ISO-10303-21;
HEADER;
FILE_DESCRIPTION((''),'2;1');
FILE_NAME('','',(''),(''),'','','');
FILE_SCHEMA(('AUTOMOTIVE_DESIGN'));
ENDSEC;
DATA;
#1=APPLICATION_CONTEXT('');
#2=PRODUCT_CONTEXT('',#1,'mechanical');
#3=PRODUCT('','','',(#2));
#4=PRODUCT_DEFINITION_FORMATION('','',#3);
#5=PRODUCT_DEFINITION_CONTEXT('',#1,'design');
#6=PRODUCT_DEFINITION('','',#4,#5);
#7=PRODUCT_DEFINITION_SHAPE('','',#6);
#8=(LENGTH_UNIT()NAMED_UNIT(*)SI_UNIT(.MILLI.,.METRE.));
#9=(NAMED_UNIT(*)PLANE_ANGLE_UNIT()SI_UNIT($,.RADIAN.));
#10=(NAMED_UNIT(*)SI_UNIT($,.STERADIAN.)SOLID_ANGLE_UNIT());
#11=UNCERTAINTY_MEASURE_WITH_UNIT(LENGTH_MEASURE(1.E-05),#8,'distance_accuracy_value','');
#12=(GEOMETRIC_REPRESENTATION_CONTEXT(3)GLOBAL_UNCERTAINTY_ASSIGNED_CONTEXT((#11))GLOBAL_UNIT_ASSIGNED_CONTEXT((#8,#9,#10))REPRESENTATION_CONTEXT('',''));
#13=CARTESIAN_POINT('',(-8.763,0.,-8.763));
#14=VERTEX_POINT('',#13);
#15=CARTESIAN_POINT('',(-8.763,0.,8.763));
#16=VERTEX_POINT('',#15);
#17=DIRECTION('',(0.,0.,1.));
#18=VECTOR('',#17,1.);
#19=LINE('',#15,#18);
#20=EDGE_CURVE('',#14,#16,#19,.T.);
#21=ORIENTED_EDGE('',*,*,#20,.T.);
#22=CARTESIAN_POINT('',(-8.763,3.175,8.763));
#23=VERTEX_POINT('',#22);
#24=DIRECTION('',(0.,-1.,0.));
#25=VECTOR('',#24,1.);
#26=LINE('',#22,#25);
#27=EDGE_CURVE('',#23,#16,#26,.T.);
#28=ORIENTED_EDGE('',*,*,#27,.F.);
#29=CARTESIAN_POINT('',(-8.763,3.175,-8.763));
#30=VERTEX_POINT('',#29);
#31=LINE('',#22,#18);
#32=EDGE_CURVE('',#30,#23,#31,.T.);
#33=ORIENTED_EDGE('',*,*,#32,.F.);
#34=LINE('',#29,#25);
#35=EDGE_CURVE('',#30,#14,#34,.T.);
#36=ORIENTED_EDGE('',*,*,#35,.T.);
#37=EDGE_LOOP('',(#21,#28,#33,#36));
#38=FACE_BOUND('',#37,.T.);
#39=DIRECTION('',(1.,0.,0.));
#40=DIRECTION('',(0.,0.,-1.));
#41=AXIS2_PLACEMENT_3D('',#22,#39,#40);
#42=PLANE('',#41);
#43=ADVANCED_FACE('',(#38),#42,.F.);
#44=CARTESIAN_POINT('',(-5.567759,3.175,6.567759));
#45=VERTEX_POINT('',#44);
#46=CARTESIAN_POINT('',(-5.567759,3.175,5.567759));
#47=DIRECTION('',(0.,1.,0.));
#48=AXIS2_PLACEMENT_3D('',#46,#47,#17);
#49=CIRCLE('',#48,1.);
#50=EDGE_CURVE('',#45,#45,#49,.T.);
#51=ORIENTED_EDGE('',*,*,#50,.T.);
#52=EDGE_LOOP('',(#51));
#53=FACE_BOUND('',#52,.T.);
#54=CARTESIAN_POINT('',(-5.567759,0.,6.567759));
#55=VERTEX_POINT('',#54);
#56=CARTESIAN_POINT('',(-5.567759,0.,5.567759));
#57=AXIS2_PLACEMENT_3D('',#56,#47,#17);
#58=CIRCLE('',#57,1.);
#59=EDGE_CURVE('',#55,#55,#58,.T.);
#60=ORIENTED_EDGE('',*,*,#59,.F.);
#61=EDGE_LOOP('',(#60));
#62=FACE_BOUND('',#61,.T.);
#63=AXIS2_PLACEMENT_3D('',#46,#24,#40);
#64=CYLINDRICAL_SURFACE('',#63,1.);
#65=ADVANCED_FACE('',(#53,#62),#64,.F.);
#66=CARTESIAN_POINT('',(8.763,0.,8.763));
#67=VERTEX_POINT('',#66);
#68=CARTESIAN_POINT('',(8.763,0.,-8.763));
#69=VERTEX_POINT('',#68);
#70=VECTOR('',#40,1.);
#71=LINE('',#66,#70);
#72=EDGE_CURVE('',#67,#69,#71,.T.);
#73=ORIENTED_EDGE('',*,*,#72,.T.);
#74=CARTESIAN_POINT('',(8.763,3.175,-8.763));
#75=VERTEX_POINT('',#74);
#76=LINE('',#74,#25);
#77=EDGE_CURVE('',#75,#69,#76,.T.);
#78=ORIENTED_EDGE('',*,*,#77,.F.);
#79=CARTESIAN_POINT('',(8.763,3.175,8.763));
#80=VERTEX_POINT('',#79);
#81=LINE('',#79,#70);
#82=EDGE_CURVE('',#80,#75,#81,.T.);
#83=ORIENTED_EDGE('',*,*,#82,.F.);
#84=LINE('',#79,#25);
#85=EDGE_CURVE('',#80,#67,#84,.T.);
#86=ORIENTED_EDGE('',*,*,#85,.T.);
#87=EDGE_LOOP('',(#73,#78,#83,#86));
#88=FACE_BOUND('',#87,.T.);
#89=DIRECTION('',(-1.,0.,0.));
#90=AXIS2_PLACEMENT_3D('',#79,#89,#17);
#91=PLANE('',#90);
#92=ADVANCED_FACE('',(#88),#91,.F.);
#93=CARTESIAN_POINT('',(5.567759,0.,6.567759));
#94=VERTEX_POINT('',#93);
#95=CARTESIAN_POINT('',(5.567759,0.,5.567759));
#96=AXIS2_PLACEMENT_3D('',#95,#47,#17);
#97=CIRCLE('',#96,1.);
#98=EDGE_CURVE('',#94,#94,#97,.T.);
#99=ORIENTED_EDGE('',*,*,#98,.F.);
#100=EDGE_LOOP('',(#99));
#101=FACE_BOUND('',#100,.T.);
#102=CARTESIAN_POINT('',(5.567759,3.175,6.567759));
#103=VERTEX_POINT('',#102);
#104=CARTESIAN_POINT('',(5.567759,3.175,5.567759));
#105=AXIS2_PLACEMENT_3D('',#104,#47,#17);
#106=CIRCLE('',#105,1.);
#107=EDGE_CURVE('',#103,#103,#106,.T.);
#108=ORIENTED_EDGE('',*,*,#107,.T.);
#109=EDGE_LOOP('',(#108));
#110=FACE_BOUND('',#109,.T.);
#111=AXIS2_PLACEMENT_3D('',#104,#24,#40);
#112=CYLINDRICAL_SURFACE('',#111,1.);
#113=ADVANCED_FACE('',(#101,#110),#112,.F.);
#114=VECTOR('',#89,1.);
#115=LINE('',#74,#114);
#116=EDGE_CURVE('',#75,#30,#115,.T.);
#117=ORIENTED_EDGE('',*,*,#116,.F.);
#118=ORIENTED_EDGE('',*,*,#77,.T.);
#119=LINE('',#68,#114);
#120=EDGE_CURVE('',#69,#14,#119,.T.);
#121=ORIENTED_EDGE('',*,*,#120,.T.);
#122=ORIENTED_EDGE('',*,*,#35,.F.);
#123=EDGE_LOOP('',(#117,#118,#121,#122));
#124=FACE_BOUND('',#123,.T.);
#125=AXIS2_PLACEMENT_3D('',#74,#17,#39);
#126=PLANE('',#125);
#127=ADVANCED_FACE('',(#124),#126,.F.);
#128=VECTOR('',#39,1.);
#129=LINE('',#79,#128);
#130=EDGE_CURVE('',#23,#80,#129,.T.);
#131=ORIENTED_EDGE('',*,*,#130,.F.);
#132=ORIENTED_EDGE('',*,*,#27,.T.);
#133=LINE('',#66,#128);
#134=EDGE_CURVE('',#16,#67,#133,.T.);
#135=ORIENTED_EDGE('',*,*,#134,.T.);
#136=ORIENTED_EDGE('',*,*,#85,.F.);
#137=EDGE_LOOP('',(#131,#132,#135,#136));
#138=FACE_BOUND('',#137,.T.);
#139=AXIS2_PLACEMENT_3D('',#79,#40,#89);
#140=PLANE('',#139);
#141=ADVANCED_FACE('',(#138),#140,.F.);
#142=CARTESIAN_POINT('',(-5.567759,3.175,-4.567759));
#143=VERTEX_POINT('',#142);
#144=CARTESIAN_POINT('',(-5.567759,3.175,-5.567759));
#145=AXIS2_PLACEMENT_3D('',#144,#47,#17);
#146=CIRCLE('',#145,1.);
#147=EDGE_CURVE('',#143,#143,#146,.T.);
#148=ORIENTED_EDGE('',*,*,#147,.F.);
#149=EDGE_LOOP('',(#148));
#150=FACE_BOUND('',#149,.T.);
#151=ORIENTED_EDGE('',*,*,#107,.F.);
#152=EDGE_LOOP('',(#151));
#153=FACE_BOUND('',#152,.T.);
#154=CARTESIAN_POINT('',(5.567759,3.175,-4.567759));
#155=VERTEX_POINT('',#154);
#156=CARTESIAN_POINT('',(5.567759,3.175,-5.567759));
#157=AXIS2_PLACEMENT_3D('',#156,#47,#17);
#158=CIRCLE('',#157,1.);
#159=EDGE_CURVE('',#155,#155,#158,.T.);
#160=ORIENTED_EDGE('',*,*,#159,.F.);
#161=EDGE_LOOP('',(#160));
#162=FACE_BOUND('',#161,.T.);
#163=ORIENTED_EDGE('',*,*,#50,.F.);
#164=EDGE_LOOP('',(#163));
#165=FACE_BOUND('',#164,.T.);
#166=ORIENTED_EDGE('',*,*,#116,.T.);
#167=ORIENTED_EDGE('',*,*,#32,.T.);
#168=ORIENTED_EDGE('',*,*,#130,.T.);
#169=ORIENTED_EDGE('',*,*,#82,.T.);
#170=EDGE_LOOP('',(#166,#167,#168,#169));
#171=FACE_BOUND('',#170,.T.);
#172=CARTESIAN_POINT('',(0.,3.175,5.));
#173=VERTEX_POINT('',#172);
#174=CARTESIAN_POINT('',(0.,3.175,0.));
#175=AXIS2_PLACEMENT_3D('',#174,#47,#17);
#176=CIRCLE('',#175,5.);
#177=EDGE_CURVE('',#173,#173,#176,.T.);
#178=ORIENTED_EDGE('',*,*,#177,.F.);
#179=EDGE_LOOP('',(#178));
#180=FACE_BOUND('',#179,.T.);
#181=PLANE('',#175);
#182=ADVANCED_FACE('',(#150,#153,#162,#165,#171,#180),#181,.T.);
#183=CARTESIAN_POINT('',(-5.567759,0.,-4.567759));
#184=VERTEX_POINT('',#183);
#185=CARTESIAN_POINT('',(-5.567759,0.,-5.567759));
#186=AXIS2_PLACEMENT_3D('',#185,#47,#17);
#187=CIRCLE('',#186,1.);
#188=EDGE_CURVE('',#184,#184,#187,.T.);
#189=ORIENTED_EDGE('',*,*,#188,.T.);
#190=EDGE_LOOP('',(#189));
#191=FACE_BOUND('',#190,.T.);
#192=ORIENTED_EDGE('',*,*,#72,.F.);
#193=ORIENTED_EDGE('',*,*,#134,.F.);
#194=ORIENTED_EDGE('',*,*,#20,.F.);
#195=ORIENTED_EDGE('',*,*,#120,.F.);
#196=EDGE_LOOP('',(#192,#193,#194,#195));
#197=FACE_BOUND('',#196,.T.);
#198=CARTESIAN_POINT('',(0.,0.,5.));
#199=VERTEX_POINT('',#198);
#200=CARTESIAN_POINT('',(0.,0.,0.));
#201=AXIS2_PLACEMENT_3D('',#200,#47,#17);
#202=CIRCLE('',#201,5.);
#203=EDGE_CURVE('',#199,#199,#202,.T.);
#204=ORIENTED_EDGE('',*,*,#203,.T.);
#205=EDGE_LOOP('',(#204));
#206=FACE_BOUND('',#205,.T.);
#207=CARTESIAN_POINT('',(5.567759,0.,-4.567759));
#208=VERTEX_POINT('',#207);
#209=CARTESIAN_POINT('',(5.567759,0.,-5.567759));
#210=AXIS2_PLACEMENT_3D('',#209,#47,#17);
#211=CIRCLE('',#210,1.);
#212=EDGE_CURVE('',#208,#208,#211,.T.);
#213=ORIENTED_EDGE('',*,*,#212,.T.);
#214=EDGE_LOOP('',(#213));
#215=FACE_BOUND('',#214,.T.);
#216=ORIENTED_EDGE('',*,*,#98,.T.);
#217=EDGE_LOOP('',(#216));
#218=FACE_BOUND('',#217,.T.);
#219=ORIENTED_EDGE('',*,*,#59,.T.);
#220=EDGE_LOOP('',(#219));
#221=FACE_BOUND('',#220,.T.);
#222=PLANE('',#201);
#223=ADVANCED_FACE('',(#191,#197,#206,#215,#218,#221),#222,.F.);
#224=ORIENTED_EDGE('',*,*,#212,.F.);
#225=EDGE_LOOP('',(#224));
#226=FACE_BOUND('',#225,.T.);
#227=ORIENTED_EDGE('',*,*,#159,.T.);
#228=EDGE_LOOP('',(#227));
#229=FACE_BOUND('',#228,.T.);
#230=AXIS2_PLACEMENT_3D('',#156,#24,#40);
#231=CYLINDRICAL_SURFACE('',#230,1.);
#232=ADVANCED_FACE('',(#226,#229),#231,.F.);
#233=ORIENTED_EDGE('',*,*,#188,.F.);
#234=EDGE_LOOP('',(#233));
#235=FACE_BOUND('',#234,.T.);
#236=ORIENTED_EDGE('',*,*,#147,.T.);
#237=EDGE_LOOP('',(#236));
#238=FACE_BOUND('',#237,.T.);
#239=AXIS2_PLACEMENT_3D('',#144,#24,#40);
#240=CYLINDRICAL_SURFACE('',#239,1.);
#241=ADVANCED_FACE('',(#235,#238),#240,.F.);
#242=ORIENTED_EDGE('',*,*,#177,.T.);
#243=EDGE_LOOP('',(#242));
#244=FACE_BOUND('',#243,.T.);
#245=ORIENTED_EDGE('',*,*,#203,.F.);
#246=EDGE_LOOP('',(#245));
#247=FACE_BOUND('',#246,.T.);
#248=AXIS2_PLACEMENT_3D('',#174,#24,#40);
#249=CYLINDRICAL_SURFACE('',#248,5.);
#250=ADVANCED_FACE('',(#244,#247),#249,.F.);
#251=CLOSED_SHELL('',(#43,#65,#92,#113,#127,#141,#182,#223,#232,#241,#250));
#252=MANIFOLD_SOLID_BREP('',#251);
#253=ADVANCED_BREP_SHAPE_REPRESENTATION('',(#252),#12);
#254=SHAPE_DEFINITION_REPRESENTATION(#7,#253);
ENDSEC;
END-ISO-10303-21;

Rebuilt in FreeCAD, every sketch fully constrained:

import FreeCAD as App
import Part
import Sketcher
from FreeCAD import Vector
Q = App.Units.Quantity

doc = App.newDocument("Part")
body = doc.addObject("PartDesign::Body", "Body")

# Sketch on XZ plane
sketch1 = doc.addObject("Sketcher::SketchObject", "Sketch")
body.addObject(sketch1)
sketch1.AttachmentSupport = (doc.XZ_Plane, [""])
sketch1.MapMode = "FlatFace"
sketch1.addGeometry(Part.LineSegment(Vector(-8.8, -8.8, 0), Vector(-8.8, 8.8, 0)), False)
sketch1.addGeometry(Part.LineSegment(Vector(-8.8, 8.8, 0), Vector(8.8, 8.8, 0)), False)
sketch1.addGeometry(Part.LineSegment(Vector(8.8, 8.8, 0), Vector(8.8, -8.8, 0)), False)
sketch1.addGeometry(Part.LineSegment(Vector(8.8, -8.8, 0), Vector(-8.8, -8.8, 0)), False)
sketch1.addGeometry(Part.Circle(Vector(-5.6, 5.6, 0), Vector(0, 0, 1), 1), False)
sketch1.addGeometry(Part.Circle(Vector(5.6, 5.6, 0), Vector(0, 0, 1), 1), False)
sketch1.addGeometry(Part.Circle(Vector(-5.6, -5.6, 0), Vector(0, 0, 1), 1), False)
sketch1.addGeometry(Part.Circle(Vector(0, 0, 0), Vector(0, 0, 1), 5), False)
sketch1.addGeometry(Part.Circle(Vector(5.6, -5.6, 0), Vector(0, 0, 1), 1), False)
sketch1.addConstraint(Sketcher.Constraint("Coincident", 0, 2, 1, 1))
sketch1.addConstraint(Sketcher.Constraint("Coincident", 1, 2, 2, 1))
sketch1.addConstraint(Sketcher.Constraint("Coincident", 2, 2, 3, 1))
sketch1.addConstraint(Sketcher.Constraint("Coincident", 3, 2, 0, 1))
sketch1.addConstraint(Sketcher.Constraint("Vertical", 0))
sketch1.addConstraint(Sketcher.Constraint("Horizontal", 1))
sketch1.addConstraint(Sketcher.Constraint("Vertical", 2))
sketch1.addConstraint(Sketcher.Constraint("Horizontal", 3))
sketch1.addConstraint(Sketcher.Constraint("Coincident", 7, 3, -1, 1))
sketch1.addConstraint(Sketcher.Constraint("Equal", 4, 5))
sketch1.addConstraint(Sketcher.Constraint("Equal", 5, 6))
sketch1.addConstraint(Sketcher.Constraint("Equal", 6, 8))
sketch1.addConstraint(Sketcher.Constraint("Symmetric", 5, 3, 6, 3, -1, 1))
sketch1.addConstraint(Sketcher.Constraint("Symmetric", 4, 3, 8, 3, -1, 1))
sketch1.addConstraint(Sketcher.Constraint("Symmetric", 0, 2, 2, 2, -1, 1))
sketch1.addConstraint(Sketcher.Constraint("Symmetric", 4, 3, 5, 3, -2))
sketch1.addConstraint(Sketcher.Constraint("Equal", 3, 0))
sketch1.addConstraint(Sketcher.Constraint("Diameter", 4, Q("2 mm")))
sketch1.addConstraint(Sketcher.Constraint("Diameter", 7, Q("10 mm")))
sketch1.addConstraint(Sketcher.Constraint("DistanceX", 1, 1, 1, 2, Q("17.526 mm")))
sketch1.addConstraint(Sketcher.Constraint("DistanceX", 4, 3, -1, 1, Q("5.567759 mm")))
sketch1.addConstraint(Sketcher.Constraint("DistanceY", -1, 1, 4, 3, Q("5.567759 mm")))
pad1 = doc.addObject("PartDesign::Pad", "Pad")
body.addObject(pad1)
pad1.Profile = sketch1
pad1.Length = 3.175
pad1.Reversed = True

doc.recompute()
